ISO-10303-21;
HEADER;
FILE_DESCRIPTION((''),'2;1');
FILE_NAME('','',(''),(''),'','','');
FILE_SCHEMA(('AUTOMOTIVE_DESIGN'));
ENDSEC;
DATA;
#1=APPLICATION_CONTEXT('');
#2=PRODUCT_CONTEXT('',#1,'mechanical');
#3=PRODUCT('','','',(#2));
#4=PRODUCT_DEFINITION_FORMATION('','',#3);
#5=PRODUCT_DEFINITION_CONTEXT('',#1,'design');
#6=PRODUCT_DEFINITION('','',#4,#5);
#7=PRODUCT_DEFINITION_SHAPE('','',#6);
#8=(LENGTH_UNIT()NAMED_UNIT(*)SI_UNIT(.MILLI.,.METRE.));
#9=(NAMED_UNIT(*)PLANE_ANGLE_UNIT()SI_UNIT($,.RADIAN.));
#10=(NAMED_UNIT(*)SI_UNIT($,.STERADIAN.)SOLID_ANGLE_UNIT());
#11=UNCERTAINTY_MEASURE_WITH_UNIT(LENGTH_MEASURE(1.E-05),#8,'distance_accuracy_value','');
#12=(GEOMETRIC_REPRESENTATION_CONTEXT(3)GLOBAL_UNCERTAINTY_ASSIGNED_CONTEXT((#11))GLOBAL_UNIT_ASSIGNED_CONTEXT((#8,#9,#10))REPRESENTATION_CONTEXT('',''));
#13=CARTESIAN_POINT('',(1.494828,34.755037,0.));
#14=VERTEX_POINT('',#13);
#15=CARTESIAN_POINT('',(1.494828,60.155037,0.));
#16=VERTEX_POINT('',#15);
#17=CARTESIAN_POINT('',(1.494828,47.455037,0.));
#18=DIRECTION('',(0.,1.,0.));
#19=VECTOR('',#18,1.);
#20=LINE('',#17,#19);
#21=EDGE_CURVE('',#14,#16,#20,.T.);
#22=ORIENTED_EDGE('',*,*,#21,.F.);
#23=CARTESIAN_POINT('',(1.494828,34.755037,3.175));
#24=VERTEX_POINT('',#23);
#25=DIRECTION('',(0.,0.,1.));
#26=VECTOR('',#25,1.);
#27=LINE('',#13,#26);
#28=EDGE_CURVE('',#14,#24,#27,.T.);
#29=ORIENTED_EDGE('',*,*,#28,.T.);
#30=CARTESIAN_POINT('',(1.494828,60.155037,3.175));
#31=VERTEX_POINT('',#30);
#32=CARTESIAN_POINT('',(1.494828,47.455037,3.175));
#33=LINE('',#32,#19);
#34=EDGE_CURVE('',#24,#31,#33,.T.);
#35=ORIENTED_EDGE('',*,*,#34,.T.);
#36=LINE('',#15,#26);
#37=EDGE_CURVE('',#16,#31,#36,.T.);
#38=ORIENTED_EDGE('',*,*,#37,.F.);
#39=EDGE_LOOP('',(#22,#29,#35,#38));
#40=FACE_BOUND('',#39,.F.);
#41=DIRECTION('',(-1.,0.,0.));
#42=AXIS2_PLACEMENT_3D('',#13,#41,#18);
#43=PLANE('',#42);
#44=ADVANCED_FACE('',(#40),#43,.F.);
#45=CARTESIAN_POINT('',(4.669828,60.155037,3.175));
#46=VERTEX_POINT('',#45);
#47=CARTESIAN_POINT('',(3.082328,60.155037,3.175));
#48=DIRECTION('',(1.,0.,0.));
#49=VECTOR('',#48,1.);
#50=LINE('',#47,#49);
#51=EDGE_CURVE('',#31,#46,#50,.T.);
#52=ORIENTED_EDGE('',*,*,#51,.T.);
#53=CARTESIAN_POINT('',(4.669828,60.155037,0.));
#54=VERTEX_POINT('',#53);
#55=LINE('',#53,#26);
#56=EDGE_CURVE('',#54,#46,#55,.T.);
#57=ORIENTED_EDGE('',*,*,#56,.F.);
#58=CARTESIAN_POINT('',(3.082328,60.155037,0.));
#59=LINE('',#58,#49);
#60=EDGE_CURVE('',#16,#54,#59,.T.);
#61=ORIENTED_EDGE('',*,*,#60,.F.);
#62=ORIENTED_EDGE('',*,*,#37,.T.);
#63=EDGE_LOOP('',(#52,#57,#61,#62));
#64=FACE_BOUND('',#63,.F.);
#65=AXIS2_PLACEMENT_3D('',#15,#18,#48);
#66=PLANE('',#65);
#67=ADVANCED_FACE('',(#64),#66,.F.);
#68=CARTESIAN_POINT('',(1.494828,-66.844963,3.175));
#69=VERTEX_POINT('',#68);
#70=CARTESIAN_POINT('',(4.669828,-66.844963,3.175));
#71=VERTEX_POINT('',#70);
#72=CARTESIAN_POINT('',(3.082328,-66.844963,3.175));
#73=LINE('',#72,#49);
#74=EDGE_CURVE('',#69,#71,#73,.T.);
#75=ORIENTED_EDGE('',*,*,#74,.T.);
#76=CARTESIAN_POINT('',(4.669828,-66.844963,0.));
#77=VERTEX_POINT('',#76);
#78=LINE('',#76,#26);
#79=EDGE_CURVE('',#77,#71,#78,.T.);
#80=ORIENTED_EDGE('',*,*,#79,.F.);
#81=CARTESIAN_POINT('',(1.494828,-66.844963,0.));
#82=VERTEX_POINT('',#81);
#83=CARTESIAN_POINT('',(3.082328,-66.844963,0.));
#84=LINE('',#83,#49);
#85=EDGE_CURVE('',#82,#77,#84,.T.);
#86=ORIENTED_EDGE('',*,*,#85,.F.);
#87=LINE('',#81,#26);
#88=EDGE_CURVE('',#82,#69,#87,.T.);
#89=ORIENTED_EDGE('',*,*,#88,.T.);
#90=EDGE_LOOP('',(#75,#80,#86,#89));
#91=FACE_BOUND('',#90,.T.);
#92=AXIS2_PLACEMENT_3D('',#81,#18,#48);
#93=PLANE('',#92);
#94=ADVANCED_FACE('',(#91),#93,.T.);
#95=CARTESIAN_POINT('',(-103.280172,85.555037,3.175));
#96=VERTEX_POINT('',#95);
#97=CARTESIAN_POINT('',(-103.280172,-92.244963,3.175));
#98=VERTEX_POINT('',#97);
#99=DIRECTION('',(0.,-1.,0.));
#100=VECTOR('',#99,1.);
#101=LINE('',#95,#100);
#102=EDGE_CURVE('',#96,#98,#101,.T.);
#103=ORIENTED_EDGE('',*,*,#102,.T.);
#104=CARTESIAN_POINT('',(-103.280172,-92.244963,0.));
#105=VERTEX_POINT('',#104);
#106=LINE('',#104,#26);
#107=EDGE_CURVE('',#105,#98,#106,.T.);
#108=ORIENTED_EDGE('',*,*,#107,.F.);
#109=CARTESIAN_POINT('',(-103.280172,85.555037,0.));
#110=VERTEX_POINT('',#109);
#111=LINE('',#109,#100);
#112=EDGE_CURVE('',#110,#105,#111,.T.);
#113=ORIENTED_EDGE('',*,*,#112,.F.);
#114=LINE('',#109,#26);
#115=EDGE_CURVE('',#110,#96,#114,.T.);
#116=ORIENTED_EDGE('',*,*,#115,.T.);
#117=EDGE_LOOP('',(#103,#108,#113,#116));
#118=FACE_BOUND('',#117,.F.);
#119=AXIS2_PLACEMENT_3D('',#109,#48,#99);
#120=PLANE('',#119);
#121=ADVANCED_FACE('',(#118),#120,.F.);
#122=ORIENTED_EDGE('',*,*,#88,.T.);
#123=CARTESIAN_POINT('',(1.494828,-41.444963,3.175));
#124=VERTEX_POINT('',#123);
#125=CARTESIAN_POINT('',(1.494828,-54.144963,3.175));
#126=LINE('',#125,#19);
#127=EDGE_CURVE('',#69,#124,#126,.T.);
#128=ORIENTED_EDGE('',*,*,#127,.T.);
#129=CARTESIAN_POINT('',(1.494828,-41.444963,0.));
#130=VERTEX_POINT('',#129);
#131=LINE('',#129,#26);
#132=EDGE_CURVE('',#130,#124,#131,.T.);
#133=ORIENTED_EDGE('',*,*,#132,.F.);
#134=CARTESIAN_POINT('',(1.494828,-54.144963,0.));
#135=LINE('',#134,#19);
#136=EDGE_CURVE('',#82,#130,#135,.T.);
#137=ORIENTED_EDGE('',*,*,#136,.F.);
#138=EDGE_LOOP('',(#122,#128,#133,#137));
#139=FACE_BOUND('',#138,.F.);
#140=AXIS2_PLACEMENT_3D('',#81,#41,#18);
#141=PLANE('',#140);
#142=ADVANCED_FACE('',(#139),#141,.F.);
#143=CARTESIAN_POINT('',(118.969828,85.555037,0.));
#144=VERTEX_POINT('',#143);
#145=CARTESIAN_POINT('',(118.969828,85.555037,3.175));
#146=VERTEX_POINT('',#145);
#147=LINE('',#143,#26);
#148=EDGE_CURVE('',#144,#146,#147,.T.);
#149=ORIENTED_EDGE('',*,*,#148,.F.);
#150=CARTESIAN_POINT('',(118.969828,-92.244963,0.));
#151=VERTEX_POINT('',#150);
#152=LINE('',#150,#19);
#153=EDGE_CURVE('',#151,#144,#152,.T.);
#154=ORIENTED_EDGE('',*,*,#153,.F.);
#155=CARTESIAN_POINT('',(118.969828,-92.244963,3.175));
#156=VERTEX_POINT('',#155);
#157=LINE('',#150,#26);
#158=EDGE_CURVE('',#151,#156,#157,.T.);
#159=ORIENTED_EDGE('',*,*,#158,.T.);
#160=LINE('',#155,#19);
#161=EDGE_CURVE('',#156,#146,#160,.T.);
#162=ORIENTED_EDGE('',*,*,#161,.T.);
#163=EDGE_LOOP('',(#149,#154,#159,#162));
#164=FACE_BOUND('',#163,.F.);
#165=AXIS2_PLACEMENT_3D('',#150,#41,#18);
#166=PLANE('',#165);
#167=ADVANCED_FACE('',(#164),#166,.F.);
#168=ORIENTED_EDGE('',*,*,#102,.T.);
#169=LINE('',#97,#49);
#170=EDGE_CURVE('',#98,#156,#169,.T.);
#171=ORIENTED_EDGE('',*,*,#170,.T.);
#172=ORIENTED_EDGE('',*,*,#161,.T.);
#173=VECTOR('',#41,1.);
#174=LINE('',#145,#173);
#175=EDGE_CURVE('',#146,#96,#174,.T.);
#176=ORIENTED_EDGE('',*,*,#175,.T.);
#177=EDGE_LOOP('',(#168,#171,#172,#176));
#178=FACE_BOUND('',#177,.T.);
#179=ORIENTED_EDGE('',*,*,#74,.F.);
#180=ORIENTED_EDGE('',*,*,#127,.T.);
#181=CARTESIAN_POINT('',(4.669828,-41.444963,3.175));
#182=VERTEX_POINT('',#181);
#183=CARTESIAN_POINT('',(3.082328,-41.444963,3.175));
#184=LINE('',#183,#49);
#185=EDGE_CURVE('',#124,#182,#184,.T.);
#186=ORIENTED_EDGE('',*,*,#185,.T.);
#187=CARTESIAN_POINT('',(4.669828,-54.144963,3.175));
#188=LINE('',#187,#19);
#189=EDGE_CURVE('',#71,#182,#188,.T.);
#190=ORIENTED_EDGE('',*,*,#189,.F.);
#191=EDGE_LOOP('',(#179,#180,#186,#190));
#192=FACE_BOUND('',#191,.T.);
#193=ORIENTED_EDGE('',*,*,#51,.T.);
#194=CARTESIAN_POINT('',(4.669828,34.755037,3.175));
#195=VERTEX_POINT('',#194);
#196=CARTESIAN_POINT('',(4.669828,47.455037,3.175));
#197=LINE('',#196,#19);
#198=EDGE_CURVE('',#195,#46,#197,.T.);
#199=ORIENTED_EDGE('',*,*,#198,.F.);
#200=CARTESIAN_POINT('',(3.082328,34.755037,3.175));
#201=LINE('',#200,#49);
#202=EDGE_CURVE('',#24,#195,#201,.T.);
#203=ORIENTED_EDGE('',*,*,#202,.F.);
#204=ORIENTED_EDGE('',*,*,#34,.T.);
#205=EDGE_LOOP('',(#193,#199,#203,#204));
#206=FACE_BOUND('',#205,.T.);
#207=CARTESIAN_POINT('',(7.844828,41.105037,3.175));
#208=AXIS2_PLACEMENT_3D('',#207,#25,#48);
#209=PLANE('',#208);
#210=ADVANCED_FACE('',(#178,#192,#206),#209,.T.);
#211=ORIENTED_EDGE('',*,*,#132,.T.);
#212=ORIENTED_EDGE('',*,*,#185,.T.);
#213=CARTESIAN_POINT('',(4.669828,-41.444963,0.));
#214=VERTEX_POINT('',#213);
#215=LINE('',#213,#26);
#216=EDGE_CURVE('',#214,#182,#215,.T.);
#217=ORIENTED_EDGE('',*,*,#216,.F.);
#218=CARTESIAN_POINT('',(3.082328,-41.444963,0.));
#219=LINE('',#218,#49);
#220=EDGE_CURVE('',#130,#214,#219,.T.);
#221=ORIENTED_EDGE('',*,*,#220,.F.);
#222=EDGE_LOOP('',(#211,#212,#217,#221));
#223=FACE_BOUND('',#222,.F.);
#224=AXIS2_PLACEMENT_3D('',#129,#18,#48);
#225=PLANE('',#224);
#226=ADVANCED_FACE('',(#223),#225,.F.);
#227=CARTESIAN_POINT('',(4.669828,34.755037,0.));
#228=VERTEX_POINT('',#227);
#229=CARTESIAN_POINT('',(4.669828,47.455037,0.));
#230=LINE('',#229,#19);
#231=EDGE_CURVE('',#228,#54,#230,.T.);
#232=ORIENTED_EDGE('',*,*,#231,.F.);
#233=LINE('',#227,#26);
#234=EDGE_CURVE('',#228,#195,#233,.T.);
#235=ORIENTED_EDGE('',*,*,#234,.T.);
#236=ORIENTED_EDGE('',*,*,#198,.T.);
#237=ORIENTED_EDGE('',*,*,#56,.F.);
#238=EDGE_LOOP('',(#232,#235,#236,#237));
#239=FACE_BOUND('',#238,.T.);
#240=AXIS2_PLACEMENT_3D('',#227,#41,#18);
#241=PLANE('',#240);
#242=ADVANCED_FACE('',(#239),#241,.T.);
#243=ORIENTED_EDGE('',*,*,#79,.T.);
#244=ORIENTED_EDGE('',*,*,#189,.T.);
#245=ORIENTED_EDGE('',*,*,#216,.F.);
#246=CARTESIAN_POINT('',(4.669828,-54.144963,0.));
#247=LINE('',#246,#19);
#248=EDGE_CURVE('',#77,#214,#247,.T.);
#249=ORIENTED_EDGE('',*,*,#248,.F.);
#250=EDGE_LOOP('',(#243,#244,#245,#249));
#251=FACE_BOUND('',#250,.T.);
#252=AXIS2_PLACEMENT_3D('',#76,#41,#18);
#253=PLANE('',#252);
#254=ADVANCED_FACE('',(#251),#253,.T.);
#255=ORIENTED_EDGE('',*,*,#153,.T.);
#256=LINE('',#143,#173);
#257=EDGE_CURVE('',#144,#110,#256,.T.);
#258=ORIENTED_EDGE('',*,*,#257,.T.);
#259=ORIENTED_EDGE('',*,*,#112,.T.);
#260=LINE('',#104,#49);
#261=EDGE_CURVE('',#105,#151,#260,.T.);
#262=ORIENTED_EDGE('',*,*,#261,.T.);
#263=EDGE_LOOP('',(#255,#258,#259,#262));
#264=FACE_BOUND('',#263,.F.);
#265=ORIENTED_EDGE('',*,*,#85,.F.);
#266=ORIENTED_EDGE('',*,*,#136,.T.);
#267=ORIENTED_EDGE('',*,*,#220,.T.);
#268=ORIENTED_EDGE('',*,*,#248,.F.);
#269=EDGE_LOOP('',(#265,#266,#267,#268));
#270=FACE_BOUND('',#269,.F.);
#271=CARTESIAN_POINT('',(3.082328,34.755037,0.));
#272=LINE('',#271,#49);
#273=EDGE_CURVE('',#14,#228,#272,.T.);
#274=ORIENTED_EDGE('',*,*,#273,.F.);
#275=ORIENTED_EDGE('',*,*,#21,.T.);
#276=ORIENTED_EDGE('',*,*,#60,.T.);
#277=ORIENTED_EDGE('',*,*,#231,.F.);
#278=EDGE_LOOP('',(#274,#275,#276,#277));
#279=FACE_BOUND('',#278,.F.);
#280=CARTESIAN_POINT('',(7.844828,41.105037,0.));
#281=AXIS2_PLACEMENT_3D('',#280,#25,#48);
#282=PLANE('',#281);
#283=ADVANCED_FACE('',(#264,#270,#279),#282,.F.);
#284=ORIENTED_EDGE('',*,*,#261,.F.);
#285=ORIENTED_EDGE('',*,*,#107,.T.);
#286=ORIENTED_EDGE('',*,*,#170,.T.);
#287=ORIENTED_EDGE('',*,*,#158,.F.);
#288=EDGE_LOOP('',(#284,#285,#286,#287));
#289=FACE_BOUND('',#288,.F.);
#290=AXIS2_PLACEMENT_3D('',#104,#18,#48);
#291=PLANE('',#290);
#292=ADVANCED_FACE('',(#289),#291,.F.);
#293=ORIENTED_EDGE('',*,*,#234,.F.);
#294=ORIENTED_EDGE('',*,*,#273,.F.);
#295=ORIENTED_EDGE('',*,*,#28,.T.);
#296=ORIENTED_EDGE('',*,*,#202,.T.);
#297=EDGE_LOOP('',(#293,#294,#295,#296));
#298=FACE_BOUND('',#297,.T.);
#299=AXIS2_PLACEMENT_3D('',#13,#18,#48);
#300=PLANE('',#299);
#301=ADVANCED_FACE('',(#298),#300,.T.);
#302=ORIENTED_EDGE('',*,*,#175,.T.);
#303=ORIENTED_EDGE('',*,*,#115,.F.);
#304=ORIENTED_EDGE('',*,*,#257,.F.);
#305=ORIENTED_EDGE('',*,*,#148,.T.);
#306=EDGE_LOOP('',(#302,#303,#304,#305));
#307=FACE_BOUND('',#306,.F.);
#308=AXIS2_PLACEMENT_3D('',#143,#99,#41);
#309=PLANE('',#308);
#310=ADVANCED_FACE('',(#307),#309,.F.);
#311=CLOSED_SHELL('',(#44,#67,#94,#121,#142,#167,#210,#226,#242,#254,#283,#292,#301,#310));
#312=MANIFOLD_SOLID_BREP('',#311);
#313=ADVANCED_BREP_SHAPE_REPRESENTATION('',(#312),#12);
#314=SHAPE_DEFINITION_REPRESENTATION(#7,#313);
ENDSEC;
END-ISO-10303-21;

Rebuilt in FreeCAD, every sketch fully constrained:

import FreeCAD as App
import Part
import Sketcher

V = App.Vector
Q = App.Units.Quantity

doc = App.newDocument("Part")
params = doc.addObject("Spreadsheet::Sheet", "Params")
for row, (alias, value) in enumerate([
    ("sketch1_height", "7 in"),
    ("sketch1_height2", "1 in"),
    ("sketch1_width", "8.75 in"),
    ("sketch1_width2", "0.125 in"),
    ("pad1_length", "0.125 in"),
], start=1):
    params.set(f"A{row}", alias)
    params.set(f"B{row}", "=" + value)
    params.setAlias(f"B{row}", alias)

body = doc.addObject("PartDesign::Body", "Body")

# Sketch on XY plane
sketch1 = body.newObject("Sketcher::SketchObject", "Sketch")
sketch1.AttachmentSupport = (doc.getObject("XY_Plane"), [""])
sketch1.MapMode = "FlatFace"
sketch1.addGeometry([
    Part.LineSegment(V(119, 85.6, 0), V(-103.3, 85.6, 0)),  # 0
    Part.LineSegment(V(-103.3, 85.6, 0), V(-103.3, -92.2, 0)),  # 1
    Part.LineSegment(V(-103.3, -92.2, 0), V(119, -92.2, 0)),  # 2
    Part.LineSegment(V(119, -92.2, 0), V(119, 85.6, 0)),  # 3
    Part.LineSegment(V(4.7, -66.8, 0), V(1.5, -66.8, 0)),  # 4
    Part.LineSegment(V(1.5, -66.8, 0), V(1.5, -41.4, 0)),  # 5
    Part.LineSegment(V(1.5, -41.4, 0), V(4.7, -41.4, 0)),  # 6
    Part.LineSegment(V(4.7, -41.4, 0), V(4.7, -66.8, 0)),  # 7
    Part.LineSegment(V(4.7, 34.8, 0), V(1.5, 34.8, 0)),  # 8
    Part.LineSegment(V(1.5, 34.8, 0), V(1.5, 60.2, 0)),  # 9
    Part.LineSegment(V(1.5, 60.2, 0), V(4.7, 60.2, 0)),  # 10
    Part.LineSegment(V(4.7, 60.2, 0), V(4.7, 34.8, 0)),  # 11
], False)
sketch1.addConstraint([
    Sketcher.Constraint("Coincident", 0, 2, 1, 1),
    Sketcher.Constraint("Coincident", 1, 2, 2, 1),
    Sketcher.Constraint("Coincident", 2, 2, 3, 1),
    Sketcher.Constraint("Coincident", 3, 2, 0, 1),
    Sketcher.Constraint("Coincident", 4, 2, 5, 1),
    Sketcher.Constraint("Coincident", 5, 2, 6, 1),
    Sketcher.Constraint("Coincident", 6, 2, 7, 1),
    Sketcher.Constraint("Coincident", 7, 2, 4, 1),
    Sketcher.Constraint("Coincident", 8, 2, 9, 1),
    Sketcher.Constraint("Coincident", 9, 2, 10, 1),
    Sketcher.Constraint("Coincident", 10, 2, 11, 1),
    Sketcher.Constraint("Coincident", 11, 2, 8, 1),
    Sketcher.Constraint("Horizontal", 0),
    Sketcher.Constraint("Vertical", 1),
    Sketcher.Constraint("Horizontal", 2),
    Sketcher.Constraint("Vertical", 3),
    Sketcher.Constraint("Horizontal", 4),
    Sketcher.Constraint("Vertical", 5),
    Sketcher.Constraint("Horizontal", 6),
    Sketcher.Constraint("Vertical", 7),
    Sketcher.Constraint("Horizontal", 8),
    Sketcher.Constraint("Vertical", 9),
    Sketcher.Constraint("Horizontal", 10),
    Sketcher.Constraint("Vertical", 11),
    Sketcher.Constraint("Vertical", 5, 2, 8, 2),
    Sketcher.Constraint("Vertical", 7, 2, 10, 2),
    Sketcher.Constraint("Equal", 7, 9),
    Sketcher.Constraint("DistanceY", 1, 2, 1, 1, Q("7 in")),
    Sketcher.Constraint("DistanceY", 5, 1, 5, 2, Q("1 in")),
    Sketcher.Constraint("DistanceY", 1, 2, 4, 2, Q("1 in")),
    Sketcher.Constraint("DistanceY", 5, 2, 8, 2, Q("3 in")),
    Sketcher.Constraint("DistanceX", 0, 2, 0, 1, Q("8.75 in")),
    Sketcher.Constraint("DistanceX", 6, 2, 2, 2, Q("4.5 in")),
    Sketcher.Constraint("DistanceX", 4, 2, 4, 1, Q("0.125 in")),
    Sketcher.Constraint("DistanceX", 0, 2, -1, 1, Q("103.280172 mm")),
    Sketcher.Constraint("DistanceY", -1, 1, 0, 2, Q("85.555037 mm")),
])
sketch1.setExpression("Constraints[27]", "Params.sketch1_height")
sketch1.setExpression("Constraints[28]", "Params.sketch1_height2")
sketch1.setExpression("Constraints[31]", "Params.sketch1_width")
sketch1.setExpression("Constraints[33]", "Params.sketch1_width2")
pad1 = body.newObject("PartDesign::Pad", "Pad")
pad1.Profile = sketch1
pad1.setExpression("Length", "Params.pad1_length")

doc.recompute()
